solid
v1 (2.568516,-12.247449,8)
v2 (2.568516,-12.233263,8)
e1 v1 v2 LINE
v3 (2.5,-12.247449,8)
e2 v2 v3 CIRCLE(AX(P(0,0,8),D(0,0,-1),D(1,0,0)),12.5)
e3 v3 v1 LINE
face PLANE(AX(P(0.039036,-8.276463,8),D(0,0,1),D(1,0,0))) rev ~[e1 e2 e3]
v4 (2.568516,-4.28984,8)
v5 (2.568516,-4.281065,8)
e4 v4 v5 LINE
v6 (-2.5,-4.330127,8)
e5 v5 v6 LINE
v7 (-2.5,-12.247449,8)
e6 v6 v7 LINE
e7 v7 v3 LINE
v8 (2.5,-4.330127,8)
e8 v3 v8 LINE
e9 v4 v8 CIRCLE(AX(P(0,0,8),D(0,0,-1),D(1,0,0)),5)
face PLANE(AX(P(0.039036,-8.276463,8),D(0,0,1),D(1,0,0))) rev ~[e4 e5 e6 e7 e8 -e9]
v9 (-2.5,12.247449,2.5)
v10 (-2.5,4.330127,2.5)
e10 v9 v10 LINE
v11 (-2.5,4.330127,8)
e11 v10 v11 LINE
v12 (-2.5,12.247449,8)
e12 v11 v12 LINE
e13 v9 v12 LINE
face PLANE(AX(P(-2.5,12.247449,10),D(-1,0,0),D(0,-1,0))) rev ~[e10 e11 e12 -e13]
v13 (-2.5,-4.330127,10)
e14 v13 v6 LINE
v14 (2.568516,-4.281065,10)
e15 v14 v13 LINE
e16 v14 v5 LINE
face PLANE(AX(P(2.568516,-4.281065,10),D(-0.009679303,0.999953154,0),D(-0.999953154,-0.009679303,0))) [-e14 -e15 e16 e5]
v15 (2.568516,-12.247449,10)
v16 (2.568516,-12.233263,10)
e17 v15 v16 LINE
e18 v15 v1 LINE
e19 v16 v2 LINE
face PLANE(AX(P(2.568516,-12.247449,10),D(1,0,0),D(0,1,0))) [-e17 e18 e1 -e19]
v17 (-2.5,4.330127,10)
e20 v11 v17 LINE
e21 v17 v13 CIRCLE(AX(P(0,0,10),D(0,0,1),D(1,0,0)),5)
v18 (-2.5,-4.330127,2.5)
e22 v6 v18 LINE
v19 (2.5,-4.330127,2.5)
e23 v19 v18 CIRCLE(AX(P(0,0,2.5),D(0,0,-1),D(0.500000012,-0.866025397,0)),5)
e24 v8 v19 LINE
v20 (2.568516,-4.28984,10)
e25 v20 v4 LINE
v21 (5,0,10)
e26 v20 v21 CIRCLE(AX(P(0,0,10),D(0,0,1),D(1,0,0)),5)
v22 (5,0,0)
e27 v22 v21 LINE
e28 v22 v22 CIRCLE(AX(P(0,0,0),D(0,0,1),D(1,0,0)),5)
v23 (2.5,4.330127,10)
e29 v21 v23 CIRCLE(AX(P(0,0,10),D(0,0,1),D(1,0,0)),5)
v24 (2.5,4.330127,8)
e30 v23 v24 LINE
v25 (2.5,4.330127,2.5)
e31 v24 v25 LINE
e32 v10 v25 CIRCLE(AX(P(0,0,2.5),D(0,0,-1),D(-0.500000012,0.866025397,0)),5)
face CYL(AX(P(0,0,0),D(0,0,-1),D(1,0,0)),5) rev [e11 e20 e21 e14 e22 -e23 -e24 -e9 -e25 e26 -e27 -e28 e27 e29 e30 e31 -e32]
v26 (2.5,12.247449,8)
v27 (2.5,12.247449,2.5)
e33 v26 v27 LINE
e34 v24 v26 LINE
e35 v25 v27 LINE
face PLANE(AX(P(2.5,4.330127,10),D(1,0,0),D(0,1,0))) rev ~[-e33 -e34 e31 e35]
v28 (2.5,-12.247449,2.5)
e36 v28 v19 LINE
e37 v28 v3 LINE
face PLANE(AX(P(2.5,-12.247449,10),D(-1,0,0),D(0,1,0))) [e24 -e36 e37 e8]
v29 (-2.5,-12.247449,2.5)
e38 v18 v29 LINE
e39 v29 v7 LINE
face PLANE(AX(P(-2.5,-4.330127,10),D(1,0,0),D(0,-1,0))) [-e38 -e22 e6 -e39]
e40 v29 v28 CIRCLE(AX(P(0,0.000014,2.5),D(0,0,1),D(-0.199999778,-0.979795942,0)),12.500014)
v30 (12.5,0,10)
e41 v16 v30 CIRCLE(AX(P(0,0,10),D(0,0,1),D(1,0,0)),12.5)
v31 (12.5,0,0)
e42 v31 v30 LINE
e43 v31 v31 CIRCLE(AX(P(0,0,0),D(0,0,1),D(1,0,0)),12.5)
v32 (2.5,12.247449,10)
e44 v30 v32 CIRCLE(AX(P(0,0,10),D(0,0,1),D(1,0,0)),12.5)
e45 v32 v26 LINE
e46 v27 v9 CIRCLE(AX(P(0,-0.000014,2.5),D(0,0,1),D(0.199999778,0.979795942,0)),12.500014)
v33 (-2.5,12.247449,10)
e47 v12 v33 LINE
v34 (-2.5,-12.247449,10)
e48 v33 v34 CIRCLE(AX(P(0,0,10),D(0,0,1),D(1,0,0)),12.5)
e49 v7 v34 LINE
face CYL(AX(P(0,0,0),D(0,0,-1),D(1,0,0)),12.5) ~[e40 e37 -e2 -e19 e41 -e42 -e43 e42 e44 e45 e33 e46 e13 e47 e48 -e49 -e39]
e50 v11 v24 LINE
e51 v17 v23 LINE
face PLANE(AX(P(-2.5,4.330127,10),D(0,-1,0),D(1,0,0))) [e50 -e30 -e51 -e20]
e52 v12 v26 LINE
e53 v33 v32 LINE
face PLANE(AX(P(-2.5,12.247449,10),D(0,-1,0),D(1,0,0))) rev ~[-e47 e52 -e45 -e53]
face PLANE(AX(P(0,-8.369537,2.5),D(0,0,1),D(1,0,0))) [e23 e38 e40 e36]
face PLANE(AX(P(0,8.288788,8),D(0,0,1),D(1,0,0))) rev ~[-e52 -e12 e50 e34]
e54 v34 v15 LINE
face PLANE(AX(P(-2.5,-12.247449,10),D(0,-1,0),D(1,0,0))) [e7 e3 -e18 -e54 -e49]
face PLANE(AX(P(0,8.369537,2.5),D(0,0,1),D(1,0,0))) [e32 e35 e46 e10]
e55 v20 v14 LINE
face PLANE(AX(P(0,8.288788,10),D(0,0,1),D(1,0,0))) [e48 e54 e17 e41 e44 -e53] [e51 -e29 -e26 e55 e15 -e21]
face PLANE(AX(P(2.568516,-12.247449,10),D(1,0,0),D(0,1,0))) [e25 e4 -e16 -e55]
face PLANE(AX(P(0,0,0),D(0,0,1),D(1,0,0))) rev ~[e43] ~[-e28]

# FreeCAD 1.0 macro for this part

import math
import FreeCAD as App
import Part
import Sketcher

V = App.Vector
Q = App.Units.Quantity

doc = App.newDocument("Part")
body = doc.addObject("PartDesign::Body", "Body")

# Sketch on XY plane
sketch1 = body.newObject("Sketcher::SketchObject", "Sketch")
sketch1.AttachmentSupport = (doc.getObject("XY_Plane"), [""])
sketch1.MapMode = "FlatFace"
sketch1.addGeometry(Part.Circle(V(0, 0, 0), V(0, 0, 1), 12.5), False)
sketch1.addGeometry(Part.Circle(V(0, 0, 0), V(0, 0, 1), 5), False)
sketch1.addConstraint(Sketcher.Constraint("Coincident", 0, 3, -1, 1))
sketch1.addConstraint(Sketcher.Constraint("Coincident", 1, 3, -1, 1))
sketch1.addConstraint(Sketcher.Constraint("Diameter", 0, Q("25 mm")))
sketch1.addConstraint(Sketcher.Constraint("Diameter", 1, Q("10 mm")))
pad1 = body.newObject("PartDesign::Pad", "Pad")
pad1.Profile = sketch1
pad1.Length = 10

# Sketch on XY plane
sketch2 = body.newObject("Sketcher::SketchObject", "Sketch001")
sketch2.AttachmentSupport = (doc.getObject("XY_Plane"), [""])
sketch2.MapMode = "FlatFace"
sketch2.AttachmentOffset = App.Placement(V(0, 0, 10), App.Rotation())
sketch2.addGeometry(Part.LineSegment(V(-2.5, -4.330127, 0), V(-2.5, -12.247449, 0)), False)
sketch2.addGeometry(Part.ArcOfCircle(Part.Circle(V(0, 0.000014, 0), V(0, 0, 1), 12.500014), math.radians(-101.536946), math.radians(-78.463054)), False)
sketch2.addGeometry(Part.LineSegment(V(2.5, -12.247449, 0), V(2.5, -4.330127, 0)), False)
sketch2.addGeometry(Part.ArcOfCircle(Part.Circle(V(0, 0, 0), V(0, 0, 1), 5), math.radians(-120.000001), math.radians(-59.999999)), False)
sketch2.addGeometry(Part.ArcOfCircle(Part.Circle(V(0, -0.000014, 0), V(0, 0, 1), 12.500014), math.radians(78.463054), math.radians(101.536946)), False)
sketch2.addGeometry(Part.LineSegment(V(-2.5, 12.247449, 0), V(-2.5, 4.330127, 0)), False)
sketch2.addGeometry(Part.ArcOfCircle(Part.Circle(V(0, 0, 0), V(0, 0, 1), 5), math.radians(59.999999), math.radians(120.000001)), False)
sketch2.addGeometry(Part.LineSegment(V(2.5, 4.330127, 0), V(2.5, 12.247449, 0)), False)
sketch2.addConstraint(Sketcher.Constraint("Coincident", 0, 2, 1, 1))
sketch2.addConstraint(Sketcher.Constraint("Coincident", 1, 2, 2, 1))
sketch2.addConstraint(Sketcher.Constraint("Coincident", 2, 2, 3, 2))
sketch2.addConstraint(Sketcher.Constraint("Coincident", 3, 1, 0, 1))
sketch2.addConstraint(Sketcher.Constraint("Coincident", 4, 2, 5, 1))
sketch2.addConstraint(Sketcher.Constraint("Coincident", 5, 2, 6, 2))
sketch2.addConstraint(Sketcher.Constraint("Coincident", 6, 1, 7, 1))
sketch2.addConstraint(Sketcher.Constraint("Coincident", 7, 2, 4, 1))
sketch2.addConstraint(Sketcher.Constraint("Vertical", 0))
sketch2.addConstraint(Sketcher.Constraint("Vertical", 2))
sketch2.addConstraint(Sketcher.Constraint("Vertical", 5))
sketch2.addConstraint(Sketcher.Constraint("Vertical", 7))
sketch2.addConstraint(Sketcher.Constraint("Coincident", 3, 3, -1, 1))
sketch2.addConstraint(Sketcher.Constraint("Coincident", 6, 3, -1, 1))
sketch2.addConstraint(Sketcher.Constraint("Equal", 1, 4))
sketch2.addConstraint(Sketcher.Constraint("Equal", 3, 6))
sketch2.addConstraint(Sketcher.Constraint("Symmetric", 1, 3, 4, 3, -1, 1))
sketch2.addConstraint(Sketcher.Constraint("Symmetric", 0, 2, 1, 2, -2))
sketch2.addConstraint(Sketcher.Constraint("Horizontal", 5, 2, 6, 1))
sketch2.addConstraint(Sketcher.Constraint("Vertical", 3, 1, 4, 2))
sketch2.addConstraint(Sketcher.Constraint("Radius", 3, Q("5 mm")))
sketch2.addConstraint(Sketcher.Constraint("DistanceX", 0, 2, 1, 2, Q("5 mm")))
sketch2.addConstraint(Sketcher.Constraint("Radius", 1, Q("12.500014 mm")))
sketch2.addConstraint(Sketcher.Constraint("DistanceY", 0, 2, 0, 1, Q("7.917322 mm")))
pocket1 = body.newObject("PartDesign::Pocket", "Pocket")
pocket1.Profile = sketch2
pocket1.Length = 15
pocket1.Midplane = True

# Sketch on XY plane
sketch3 = body.newObject("Sketcher::SketchObject", "Sketch002")
sketch3.AttachmentSupport = (doc.getObject("XY_Plane"), [""])
sketch3.MapMode = "FlatFace"
sketch3.AttachmentOffset = App.Placement(V(0, 0, 10), App.Rotation())
sketch3.addGeometry(Part.LineSegment(V(-2.5, -4.330127, 0), V(-2.5, -12.247449, 0)), False)
sketch3.addGeometry(Part.LineSegment(V(-2.5, -12.247449, 0), V(2.568516, -12.247449, 0)), False)
sketch3.addGeometry(Part.LineSegment(V(2.568516, -12.247449, 0), V(2.568516, -4.281065, 0)), False)
sketch3.addGeometry(Part.LineSegment(V(2.568516, -4.281065, 0), V(-2.5, -4.330127, 0)), False)
sketch3.addConstraint(Sketcher.Constraint("Coincident", 0, 2, 1, 1))
sketch3.addConstraint(Sketcher.Constraint("Coincident", 1, 2, 2, 1))
sketch3.addConstraint(Sketcher.Constraint("Coincident", 2, 2, 3, 1))
sketch3.addConstraint(Sketcher.Constraint("Coincident", 3, 2, 0, 1))
sketch3.addConstraint(Sketcher.Constraint("Vertical", 0))
sketch3.addConstraint(Sketcher.Constraint("Horizontal", 1))
sketch3.addConstraint(Sketcher.Constraint("Vertical", 2))
sketch3.addConstraint(Sketcher.Constraint("DistanceX", 0, 2, -1, 1, Q("2.5 mm")))
sketch3.addConstraint(Sketcher.Constraint("DistanceY", 0, 2, 0, 1, Q("7.917322 mm")))
sketch3.addConstraint(Sketcher.Constraint("DistanceX", 1, 1, 1, 2, Q("5.068516 mm")))
sketch3.addConstraint(Sketcher.Constraint("DistanceY", 2, 1, 2, 2, Q("7.966384 mm")))
sketch3.addConstraint(Sketcher.Constraint("DistanceY", 0, 2, -1, 1, Q("12.247449 mm")))
pad2 = body.newObject("PartDesign::Pad", "Pad001")
pad2.Profile = sketch3
pad2.Length = 2
pad2.Reversed = True

# Sketch on XY plane
sketch4 = body.newObject("Sketcher::SketchObject", "Sketch003")
sketch4.AttachmentSupport = (doc.getObject("XY_Plane"), [""])
sketch4.MapMode = "FlatFace"
sketch4.AttachmentOffset = App.Placement(V(0, 0, 10), App.Rotation())
sketch4.addGeometry(Part.LineSegment(V(-2.5, 12.247449, 0), V(-2.5, 4.330127, 0)), False)
sketch4.addGeometry(Part.LineSegment(V(-2.5, 4.330127, 0), V(2.5, 4.330127, 0)), False)
sketch4.addGeometry(Part.LineSegment(V(2.5, 4.330127, 0), V(2.5, 12.247449, 0)), False)
sketch4.addGeometry(Part.LineSegment(V(2.5, 12.247449, 0), V(-2.5, 12.247449, 0)), False)
sketch4.addConstraint(Sketcher.Constraint("Coincident", 0, 2, 1, 1))
sketch4.addConstraint(Sketcher.Constraint("Coincident", 1, 2, 2, 1))
sketch4.addConstraint(Sketcher.Constraint("Coincident", 2, 2, 3, 1))
sketch4.addConstraint(Sketcher.Constraint("Coincident", 3, 2, 0, 1))
sketch4.addConstraint(Sketcher.Constraint("Vertical", 0))
sketch4.addConstraint(Sketcher.Constraint("Horizontal", 1))
sketch4.addConstraint(Sketcher.Constraint("Vertical", 2))
sketch4.addConstraint(Sketcher.Constraint("Horizontal", 3))
sketch4.addConstraint(Sketcher.Constraint("DistanceX", 1, 1, 1, 2, Q("5 mm")))
sketch4.addConstraint(Sketcher.Constraint("DistanceX", 0, 2, -1, 1, Q("2.5 mm")))
sketch4.addConstraint(Sketcher.Constraint("DistanceY", 0, 2, 0, 1, Q("7.917322 mm")))
sketch4.addConstraint(Sketcher.Constraint("DistanceY", -1, 1, 2, 2, Q("12.247449 mm")))
pad3 = body.newObject("PartDesign::Pad", "Pad002")
pad3.Profile = sketch4
pad3.Length = 2
pad3.Reversed = True

doc.recompute()
